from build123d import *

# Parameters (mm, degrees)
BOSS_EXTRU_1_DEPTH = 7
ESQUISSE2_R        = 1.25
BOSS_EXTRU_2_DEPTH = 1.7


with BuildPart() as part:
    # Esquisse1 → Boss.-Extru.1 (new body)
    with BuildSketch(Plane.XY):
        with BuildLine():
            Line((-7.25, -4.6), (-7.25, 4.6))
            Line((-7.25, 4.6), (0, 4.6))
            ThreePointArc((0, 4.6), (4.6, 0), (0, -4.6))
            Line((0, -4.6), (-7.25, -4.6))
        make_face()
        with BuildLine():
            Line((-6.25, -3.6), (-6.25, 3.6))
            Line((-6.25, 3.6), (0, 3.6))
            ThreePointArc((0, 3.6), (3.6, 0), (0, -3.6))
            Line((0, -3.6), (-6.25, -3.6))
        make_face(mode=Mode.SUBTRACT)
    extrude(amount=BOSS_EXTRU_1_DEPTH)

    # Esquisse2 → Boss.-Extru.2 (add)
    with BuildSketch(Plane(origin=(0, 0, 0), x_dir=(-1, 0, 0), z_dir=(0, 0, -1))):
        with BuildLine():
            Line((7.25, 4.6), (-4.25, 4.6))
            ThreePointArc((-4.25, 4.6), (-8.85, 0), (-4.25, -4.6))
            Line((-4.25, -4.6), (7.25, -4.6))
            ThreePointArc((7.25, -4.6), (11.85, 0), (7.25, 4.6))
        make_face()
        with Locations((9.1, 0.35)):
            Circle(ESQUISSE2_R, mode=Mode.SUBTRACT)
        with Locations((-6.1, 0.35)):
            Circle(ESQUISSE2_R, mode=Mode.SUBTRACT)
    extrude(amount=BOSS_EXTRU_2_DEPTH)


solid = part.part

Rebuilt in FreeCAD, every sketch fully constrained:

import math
import FreeCAD as App
import Part
import Sketcher
Q = App.Units.Quantity

doc = App.newDocument("Part")
body = doc.addObject("PartDesign::Body", "Body")

sketch1 = doc.addObject("Sketcher::SketchObject", "Sketch")
body.addObject(sketch1)
sketch1.AttachmentSupport = (doc.XY_Plane, [""])
sketch1.MapMode = "FlatFace"
sketch1.addGeometry([
    Part.LineSegment(App.Vector(-7.2, 4.6, 0), App.Vector(-7.2, -4.6, 0)),
    Part.LineSegment(App.Vector(-7.2, -4.6, 0), App.Vector(0, -4.6, 0)),
    Part.ArcOfCircle(Part.Circle(App.Vector(0, 0, 0), App.Vector(0, 0, 1), 4.6), math.radians(-90), math.radians(90)),
    Part.LineSegment(App.Vector(0, 4.6, 0), App.Vector(-7.2, 4.6, 0)),
    Part.LineSegment(App.Vector(-6.2, -3.6, 0), App.Vector(-6.2, 3.6, 0)),
    Part.LineSegment(App.Vector(-6.2, 3.6, 0), App.Vector(0, 3.6, 0)),
    Part.ArcOfCircle(Part.Circle(App.Vector(0, 0, 0), App.Vector(0, 0, 1), 3.6), math.radians(-90), math.radians(90)),
    Part.LineSegment(App.Vector(0, -3.6, 0), App.Vector(-6.2, -3.6, 0)),
], False)
sketch1.addConstraint([
    Sketcher.Constraint("Coincident", 0, 2, 1, 1),
    Sketcher.Constraint("Tangent", 1, 2, 2, 1),
    Sketcher.Constraint("Tangent", 2, 2, 3, 1),
    Sketcher.Constraint("Coincident", 3, 2, 0, 1),
    Sketcher.Constraint("Coincident", 4, 2, 5, 1),
    Sketcher.Constraint("Tangent", 5, 2, 6, 2),
    Sketcher.Constraint("Tangent", 6, 1, 7, 1),
    Sketcher.Constraint("Coincident", 7, 2, 4, 1),
    Sketcher.Constraint("Vertical", 0),
    Sketcher.Constraint("Horizontal", 1),
    Sketcher.Constraint("Horizontal", 3),
    Sketcher.Constraint("Vertical", 4),
    Sketcher.Constraint("Horizontal", 5),
    Sketcher.Constraint("Horizontal", 7),
    Sketcher.Constraint("Coincident", 2, 3, -1, 1),
    Sketcher.Constraint("Coincident", 6, 3, -1, 1),
    Sketcher.Constraint("Radius", 2, Q("4.6 mm")),
    Sketcher.Constraint("Radius", 6, Q("3.6 mm")),
    Sketcher.Constraint("DistanceX", 3, 2, 4, 2, Q("1 mm")),
    Sketcher.Constraint("DistanceX", 1, 1, 1, 2, Q("7.25 mm")),
])
pad1 = doc.addObject("PartDesign::Pad", "Pad")
body.addObject(pad1)
pad1.Profile = sketch1
pad1.Length = 7

sketch2 = doc.addObject("Sketcher::SketchObject", "Sketch001")
body.addObject(sketch2)
sketch2.AttachmentSupport = (doc.XY_Plane, [""])
sketch2.MapMode = "FlatFace"
sketch2.addGeometry([
    Part.LineSegment(App.Vector(-7.2, 4.6, 0), App.Vector(4.2, 4.6, 0)),
    Part.ArcOfCircle(Part.Circle(App.Vector(4.2, 0, 0), App.Vector(0, 0, 1), 4.6), math.radians(-90), math.radians(90)),
    Part.LineSegment(App.Vector(4.2, -4.6, 0), App.Vector(-7.2, -4.6, 0)),
    Part.ArcOfCircle(Part.Circle(App.Vector(-7.2, 0, 0), App.Vector(0, 0, 1), 4.6), math.radians(90), math.radians(270)),
    Part.Circle(App.Vector(6.1, 0.3, 0), App.Vector(0, 0, 1), 1.2),
    Part.Circle(App.Vector(-9.1, 0.3, 0), App.Vector(0, 0, 1), 1.2),
], False)
sketch2.addConstraint([
    Sketcher.Constraint("Tangent", 0, 2, 1, 2),
    Sketcher.Constraint("Tangent", 1, 1, 2, 1),
    Sketcher.Constraint("Tangent", 2, 2, 3, 2),
    Sketcher.Constraint("Tangent", 3, 1, 0, 1),
    Sketcher.Constraint("Horizontal", 0),
    Sketcher.Constraint("Horizontal", 2),
    Sketcher.Constraint("Equal", 4, 5),
    Sketcher.Constraint("PointOnObject", 1, 3, -1),
    Sketcher.Constraint("Horizontal", 4, 3, 5, 3),
    Sketcher.Constraint("Diameter", 4, Q("2.5 mm")),
    Sketcher.Constraint("Radius", 1, Q("4.6 mm")),
    Sketcher.Constraint("DistanceX", 0, 1, 0, 2, Q("11.5 mm")),
    Sketcher.Constraint("DistanceX", -1, 1, 4, 3, Q("6.1 mm")),
    Sketcher.Constraint("DistanceX", 5, 3, -1, 1, Q("9.1 mm")),
    Sketcher.Constraint("DistanceX", -1, 1, 1, 3, Q("4.25 mm")),
    Sketcher.Constraint("DistanceY", -1, 1, 4, 3, Q("0.35 mm")),
])
pad2 = doc.addObject("PartDesign::Pad", "Pad001")
body.addObject(pad2)
pad2.Profile = sketch2
pad2.Length = 1.7
pad2.Reversed = True

doc.recompute()
